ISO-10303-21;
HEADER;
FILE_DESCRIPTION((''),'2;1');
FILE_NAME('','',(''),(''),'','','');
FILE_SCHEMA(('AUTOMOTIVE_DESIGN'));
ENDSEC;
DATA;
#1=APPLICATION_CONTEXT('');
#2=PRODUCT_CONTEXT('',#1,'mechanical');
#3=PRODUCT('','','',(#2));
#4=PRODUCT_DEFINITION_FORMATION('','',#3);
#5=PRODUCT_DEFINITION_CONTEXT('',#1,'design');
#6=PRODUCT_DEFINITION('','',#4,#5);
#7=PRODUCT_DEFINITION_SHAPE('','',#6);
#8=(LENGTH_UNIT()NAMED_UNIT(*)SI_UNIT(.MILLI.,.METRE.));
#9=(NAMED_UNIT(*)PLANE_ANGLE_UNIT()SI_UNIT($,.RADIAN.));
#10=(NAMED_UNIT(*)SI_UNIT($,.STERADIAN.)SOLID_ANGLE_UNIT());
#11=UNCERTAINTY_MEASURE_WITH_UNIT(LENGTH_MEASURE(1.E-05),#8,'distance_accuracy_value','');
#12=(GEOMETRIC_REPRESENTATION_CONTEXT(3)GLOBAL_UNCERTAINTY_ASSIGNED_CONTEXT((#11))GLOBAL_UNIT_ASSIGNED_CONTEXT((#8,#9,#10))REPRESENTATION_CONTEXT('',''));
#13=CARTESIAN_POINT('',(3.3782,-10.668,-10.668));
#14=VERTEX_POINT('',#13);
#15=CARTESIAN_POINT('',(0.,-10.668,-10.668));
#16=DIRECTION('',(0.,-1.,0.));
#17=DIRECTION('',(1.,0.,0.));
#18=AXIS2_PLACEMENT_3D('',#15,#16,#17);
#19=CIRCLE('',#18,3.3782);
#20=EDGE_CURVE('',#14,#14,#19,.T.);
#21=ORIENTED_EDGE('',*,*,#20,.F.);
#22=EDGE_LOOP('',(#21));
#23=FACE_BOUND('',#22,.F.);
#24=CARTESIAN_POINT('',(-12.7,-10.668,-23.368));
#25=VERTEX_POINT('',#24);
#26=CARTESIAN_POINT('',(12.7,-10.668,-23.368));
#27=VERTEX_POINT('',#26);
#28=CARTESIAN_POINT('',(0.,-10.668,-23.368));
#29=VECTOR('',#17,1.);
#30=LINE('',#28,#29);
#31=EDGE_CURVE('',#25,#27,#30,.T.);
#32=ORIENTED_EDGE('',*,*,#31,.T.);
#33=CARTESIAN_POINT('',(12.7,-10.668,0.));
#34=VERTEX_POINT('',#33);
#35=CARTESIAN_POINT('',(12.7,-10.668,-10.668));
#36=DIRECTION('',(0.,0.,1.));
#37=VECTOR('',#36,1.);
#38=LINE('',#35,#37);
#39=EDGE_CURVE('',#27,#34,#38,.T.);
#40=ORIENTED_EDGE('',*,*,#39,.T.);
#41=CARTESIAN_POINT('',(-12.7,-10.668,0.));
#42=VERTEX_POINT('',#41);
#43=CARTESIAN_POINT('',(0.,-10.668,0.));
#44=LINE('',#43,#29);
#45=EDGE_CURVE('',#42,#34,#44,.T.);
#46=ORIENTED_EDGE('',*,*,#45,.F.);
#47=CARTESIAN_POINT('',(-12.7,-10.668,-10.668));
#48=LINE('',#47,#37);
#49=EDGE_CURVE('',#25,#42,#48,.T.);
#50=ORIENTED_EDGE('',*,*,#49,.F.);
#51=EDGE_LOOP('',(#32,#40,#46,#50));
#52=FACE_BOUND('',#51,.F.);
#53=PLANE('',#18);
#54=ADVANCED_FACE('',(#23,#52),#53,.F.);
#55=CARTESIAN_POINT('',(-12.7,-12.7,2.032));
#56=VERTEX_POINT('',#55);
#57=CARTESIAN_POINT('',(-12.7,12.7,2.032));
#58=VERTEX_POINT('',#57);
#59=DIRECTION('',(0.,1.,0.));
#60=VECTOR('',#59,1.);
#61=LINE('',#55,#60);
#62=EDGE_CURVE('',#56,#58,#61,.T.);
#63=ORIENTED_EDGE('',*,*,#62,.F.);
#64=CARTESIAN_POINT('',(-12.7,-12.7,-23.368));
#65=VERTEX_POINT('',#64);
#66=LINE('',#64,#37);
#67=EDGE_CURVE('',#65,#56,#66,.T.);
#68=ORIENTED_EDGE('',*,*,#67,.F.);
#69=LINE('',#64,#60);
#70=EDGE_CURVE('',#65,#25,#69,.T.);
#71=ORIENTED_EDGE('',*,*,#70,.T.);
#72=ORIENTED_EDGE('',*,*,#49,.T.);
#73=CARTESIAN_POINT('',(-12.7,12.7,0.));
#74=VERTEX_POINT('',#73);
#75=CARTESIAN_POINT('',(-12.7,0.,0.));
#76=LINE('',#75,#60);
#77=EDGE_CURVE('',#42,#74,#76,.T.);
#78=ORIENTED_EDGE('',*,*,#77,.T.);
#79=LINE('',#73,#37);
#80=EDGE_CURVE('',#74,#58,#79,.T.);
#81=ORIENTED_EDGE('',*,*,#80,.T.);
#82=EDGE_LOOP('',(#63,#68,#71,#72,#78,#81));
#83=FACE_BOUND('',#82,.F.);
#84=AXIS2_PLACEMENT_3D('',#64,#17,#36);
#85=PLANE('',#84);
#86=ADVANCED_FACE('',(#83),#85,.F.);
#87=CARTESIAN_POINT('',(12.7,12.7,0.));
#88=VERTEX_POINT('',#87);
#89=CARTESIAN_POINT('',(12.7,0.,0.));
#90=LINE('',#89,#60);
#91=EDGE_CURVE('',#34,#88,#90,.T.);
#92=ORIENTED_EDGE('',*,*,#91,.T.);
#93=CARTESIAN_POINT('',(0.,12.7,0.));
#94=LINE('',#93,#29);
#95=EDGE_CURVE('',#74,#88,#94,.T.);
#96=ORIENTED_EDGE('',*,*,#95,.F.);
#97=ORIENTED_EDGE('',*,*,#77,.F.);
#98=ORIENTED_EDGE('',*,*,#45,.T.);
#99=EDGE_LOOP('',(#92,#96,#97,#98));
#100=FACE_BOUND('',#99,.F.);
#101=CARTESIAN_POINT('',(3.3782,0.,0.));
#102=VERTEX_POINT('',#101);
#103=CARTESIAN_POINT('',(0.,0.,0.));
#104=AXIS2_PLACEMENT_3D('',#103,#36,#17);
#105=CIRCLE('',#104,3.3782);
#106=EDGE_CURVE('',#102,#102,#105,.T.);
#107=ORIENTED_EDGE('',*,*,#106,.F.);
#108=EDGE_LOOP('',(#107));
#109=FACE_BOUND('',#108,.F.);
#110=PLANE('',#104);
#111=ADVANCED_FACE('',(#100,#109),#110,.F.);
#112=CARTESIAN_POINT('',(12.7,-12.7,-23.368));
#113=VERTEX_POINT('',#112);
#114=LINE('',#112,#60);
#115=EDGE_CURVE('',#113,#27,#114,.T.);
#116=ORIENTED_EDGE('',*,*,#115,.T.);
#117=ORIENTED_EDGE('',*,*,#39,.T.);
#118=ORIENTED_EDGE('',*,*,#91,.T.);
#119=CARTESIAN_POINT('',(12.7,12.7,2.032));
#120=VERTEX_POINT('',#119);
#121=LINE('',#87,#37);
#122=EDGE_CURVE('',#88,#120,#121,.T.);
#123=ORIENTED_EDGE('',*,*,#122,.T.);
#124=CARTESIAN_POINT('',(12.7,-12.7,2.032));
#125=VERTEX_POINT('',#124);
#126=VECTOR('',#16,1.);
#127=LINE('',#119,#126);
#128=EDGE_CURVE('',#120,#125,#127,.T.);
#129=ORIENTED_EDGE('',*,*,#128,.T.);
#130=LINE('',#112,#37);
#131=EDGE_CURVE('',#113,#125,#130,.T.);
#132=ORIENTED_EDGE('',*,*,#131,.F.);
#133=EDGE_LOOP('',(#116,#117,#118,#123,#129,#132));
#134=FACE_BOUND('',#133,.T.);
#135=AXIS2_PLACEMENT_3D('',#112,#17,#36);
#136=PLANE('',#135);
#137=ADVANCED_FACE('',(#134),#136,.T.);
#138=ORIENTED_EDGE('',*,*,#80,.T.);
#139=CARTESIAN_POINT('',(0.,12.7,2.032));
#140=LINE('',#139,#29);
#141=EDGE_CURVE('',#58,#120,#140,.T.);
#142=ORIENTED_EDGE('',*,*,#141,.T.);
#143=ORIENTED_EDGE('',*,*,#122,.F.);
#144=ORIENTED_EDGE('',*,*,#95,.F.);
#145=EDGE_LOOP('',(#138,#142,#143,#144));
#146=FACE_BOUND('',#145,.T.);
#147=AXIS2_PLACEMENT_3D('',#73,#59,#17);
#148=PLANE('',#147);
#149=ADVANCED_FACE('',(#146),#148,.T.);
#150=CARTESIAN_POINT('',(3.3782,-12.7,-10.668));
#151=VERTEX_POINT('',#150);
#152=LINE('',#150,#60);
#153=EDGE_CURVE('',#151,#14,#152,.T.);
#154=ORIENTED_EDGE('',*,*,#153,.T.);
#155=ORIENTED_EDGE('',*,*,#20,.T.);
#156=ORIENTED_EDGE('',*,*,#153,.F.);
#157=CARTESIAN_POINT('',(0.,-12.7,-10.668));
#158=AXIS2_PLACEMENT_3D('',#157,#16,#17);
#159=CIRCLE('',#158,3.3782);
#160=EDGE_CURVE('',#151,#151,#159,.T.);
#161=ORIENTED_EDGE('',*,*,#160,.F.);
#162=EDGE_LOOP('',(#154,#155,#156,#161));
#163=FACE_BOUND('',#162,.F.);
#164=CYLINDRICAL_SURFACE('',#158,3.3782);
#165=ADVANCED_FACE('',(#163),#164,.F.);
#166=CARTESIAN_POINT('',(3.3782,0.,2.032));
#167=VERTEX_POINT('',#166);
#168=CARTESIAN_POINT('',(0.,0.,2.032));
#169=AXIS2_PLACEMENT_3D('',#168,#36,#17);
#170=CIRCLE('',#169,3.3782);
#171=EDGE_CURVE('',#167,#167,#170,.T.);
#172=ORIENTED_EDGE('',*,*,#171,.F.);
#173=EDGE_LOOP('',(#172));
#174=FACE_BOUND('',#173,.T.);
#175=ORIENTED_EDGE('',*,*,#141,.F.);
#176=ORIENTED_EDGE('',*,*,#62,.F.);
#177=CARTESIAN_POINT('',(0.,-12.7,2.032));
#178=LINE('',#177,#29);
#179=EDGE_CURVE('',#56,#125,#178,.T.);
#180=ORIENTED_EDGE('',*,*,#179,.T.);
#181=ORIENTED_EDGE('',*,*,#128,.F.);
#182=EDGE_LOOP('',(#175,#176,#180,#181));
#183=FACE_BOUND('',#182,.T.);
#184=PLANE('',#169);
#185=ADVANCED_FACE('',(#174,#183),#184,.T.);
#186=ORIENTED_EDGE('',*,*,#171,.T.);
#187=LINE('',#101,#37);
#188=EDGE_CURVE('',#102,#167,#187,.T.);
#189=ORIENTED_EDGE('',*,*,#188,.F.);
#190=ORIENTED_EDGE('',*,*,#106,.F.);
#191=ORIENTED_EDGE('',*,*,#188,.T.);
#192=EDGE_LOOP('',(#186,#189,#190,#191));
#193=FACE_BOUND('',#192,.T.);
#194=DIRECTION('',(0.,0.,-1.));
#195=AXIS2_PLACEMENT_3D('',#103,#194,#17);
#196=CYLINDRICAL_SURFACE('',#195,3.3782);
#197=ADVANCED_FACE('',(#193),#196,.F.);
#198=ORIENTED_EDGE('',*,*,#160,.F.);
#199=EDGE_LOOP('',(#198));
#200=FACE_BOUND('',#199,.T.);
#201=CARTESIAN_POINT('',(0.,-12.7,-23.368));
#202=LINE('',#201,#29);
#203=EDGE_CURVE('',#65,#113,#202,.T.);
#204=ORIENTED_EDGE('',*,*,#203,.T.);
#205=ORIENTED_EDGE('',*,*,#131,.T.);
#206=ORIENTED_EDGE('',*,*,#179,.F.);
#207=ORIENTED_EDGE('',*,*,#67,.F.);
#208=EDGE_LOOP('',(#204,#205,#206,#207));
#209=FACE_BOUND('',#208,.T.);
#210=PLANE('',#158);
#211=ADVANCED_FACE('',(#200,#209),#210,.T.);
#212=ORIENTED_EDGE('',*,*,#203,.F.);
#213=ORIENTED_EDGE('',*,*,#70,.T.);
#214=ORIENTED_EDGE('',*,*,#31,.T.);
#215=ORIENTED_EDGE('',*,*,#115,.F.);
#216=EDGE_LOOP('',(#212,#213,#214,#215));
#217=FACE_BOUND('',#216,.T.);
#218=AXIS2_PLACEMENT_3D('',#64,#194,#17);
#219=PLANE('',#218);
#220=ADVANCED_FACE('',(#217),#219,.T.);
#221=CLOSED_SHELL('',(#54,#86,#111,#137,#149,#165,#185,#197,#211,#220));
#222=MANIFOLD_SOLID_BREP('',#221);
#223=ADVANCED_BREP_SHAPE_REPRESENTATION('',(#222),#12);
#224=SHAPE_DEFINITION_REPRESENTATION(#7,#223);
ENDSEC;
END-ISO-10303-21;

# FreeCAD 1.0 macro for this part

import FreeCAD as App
import Part
import Sketcher
from FreeCAD import Vector
Q = App.Units.Quantity

doc = App.newDocument("Part")
body = doc.addObject("PartDesign::Body", "Body")

sketch1 = doc.addObject("Sketcher::SketchObject", "Sketch")
body.addObject(sketch1)
sketch1.AttachmentSupport = (doc.XY_Plane, [""])
sketch1.MapMode = "FlatFace"
sketch1.addGeometry(Part.LineSegment(Vector(-12.7, 12.7, 0), Vector(-12.7, -12.7, 0)), False)
sketch1.addGeometry(Part.LineSegment(Vector(-12.7, -12.7, 0), Vector(12.7, -12.7, 0)), False)
sketch1.addGeometry(Part.LineSegment(Vector(12.7, -12.7, 0), Vector(12.7, 12.7, 0)), False)
sketch1.addGeometry(Part.LineSegment(Vector(12.7, 12.7, 0), Vector(-12.7, 12.7, 0)), False)
sketch1.addGeometry(Part.Circle(Vector(0, 0, 0), Vector(0, 0, 1), 3.4), False)
sketch1.addConstraint(Sketcher.Constraint("Coincident", 0, 2, 1, 1))
sketch1.addConstraint(Sketcher.Constraint("Coincident", 1, 2, 2, 1))
sketch1.addConstraint(Sketcher.Constraint("Coincident", 2, 2, 3, 1))
sketch1.addConstraint(Sketcher.Constraint("Coincident", 3, 2, 0, 1))
sketch1.addConstraint(Sketcher.Constraint("Vertical", 0))
sketch1.addConstraint(Sketcher.Constraint("Horizontal", 1))
sketch1.addConstraint(Sketcher.Constraint("Vertical", 2))
sketch1.addConstraint(Sketcher.Constraint("Horizontal", 3))
sketch1.addConstraint(Sketcher.Constraint("Coincident", 4, 3, -1, 1))
sketch1.addConstraint(Sketcher.Constraint("Symmetric", 0, 2, 2, 2, -1, 1))
sketch1.addConstraint(Sketcher.Constraint("Equal", 3, 0))
sketch1.addConstraint(Sketcher.Constraint("DistanceX", 1, 1, 1, 2, Q("1 in")))
sketch1.addConstraint(Sketcher.Constraint("Diameter", 4, Q("0.266 in")))
pad1 = doc.addObject("PartDesign::Pad", "Pad")
body.addObject(pad1)
pad1.Profile = sketch1
pad1.Length = Q("0.08 in")

sketch2 = doc.addObject("Sketcher::SketchObject", "Sketch001")
body.addObject(sketch2)
sketch2.AttachmentSupport = (doc.XZ_Plane, [""])
sketch2.MapMode = "FlatFace"
sketch2.AttachmentOffset = App.Placement(Vector(0, 0, 0.5 * 25.4), App.Rotation())
sketch2.addGeometry(Part.LineSegment(Vector(-12.7, 2, 0), Vector(-12.7, -23.4, 0)), False)
sketch2.addGeometry(Part.LineSegment(Vector(-12.7, -23.4, 0), Vector(12.7, -23.4, 0)), False)
sketch2.addGeometry(Part.LineSegment(Vector(12.7, -23.4, 0), Vector(12.7, 2, 0)), False)
sketch2.addGeometry(Part.LineSegment(Vector(12.7, 2, 0), Vector(-12.7, 2, 0)), False)
sketch2.addGeometry(Part.Circle(Vector(0, -10.7, 0), Vector(0, 0, 1), 3.4), False)
sketch2.addConstraint(Sketcher.Constraint("Coincident", 0, 2, 1, 1))
sketch2.addConstraint(Sketcher.Constraint("Coincident", 1, 2, 2, 1))
sketch2.addConstraint(Sketcher.Constraint("Coincident", 2, 2, 3, 1))
sketch2.addConstraint(Sketcher.Constraint("Coincident", 3, 2, 0, 1))
sketch2.addConstraint(Sketcher.Constraint("Vertical", 0))
sketch2.addConstraint(Sketcher.Constraint("Horizontal", 1))
sketch2.addConstraint(Sketcher.Constraint("Vertical", 2))
sketch2.addConstraint(Sketcher.Constraint("Horizontal", 3))
sketch2.addConstraint(Sketcher.Constraint("PointOnObject", 4, 3, -2))
sketch2.addConstraint(Sketcher.Constraint("Equal", 3, 0))
sketch2.addConstraint(Sketcher.Constraint("DistanceX", 1, 1, 1, 2, Q("1 in")))
sketch2.addConstraint(Sketcher.Constraint("Diameter", 4, Q("0.266 in")))
sketch2.addConstraint(Sketcher.Constraint("DistanceX", 0, 2, -1, 1, Q("0.5 in")))
sketch2.addConstraint(Sketcher.Constraint("DistanceY", 0, 2, 4, 3, Q("0.5 in")))
sketch2.addConstraint(Sketcher.Constraint("DistanceY", 4, 3, -1, 1, Q("0.42 in")))
pad2 = doc.addObject("PartDesign::Pad", "Pad001")
body.addObject(pad2)
pad2.Profile = sketch2
pad2.Length = Q("0.08 in")
pad2.Reversed = True

doc.recompute()
